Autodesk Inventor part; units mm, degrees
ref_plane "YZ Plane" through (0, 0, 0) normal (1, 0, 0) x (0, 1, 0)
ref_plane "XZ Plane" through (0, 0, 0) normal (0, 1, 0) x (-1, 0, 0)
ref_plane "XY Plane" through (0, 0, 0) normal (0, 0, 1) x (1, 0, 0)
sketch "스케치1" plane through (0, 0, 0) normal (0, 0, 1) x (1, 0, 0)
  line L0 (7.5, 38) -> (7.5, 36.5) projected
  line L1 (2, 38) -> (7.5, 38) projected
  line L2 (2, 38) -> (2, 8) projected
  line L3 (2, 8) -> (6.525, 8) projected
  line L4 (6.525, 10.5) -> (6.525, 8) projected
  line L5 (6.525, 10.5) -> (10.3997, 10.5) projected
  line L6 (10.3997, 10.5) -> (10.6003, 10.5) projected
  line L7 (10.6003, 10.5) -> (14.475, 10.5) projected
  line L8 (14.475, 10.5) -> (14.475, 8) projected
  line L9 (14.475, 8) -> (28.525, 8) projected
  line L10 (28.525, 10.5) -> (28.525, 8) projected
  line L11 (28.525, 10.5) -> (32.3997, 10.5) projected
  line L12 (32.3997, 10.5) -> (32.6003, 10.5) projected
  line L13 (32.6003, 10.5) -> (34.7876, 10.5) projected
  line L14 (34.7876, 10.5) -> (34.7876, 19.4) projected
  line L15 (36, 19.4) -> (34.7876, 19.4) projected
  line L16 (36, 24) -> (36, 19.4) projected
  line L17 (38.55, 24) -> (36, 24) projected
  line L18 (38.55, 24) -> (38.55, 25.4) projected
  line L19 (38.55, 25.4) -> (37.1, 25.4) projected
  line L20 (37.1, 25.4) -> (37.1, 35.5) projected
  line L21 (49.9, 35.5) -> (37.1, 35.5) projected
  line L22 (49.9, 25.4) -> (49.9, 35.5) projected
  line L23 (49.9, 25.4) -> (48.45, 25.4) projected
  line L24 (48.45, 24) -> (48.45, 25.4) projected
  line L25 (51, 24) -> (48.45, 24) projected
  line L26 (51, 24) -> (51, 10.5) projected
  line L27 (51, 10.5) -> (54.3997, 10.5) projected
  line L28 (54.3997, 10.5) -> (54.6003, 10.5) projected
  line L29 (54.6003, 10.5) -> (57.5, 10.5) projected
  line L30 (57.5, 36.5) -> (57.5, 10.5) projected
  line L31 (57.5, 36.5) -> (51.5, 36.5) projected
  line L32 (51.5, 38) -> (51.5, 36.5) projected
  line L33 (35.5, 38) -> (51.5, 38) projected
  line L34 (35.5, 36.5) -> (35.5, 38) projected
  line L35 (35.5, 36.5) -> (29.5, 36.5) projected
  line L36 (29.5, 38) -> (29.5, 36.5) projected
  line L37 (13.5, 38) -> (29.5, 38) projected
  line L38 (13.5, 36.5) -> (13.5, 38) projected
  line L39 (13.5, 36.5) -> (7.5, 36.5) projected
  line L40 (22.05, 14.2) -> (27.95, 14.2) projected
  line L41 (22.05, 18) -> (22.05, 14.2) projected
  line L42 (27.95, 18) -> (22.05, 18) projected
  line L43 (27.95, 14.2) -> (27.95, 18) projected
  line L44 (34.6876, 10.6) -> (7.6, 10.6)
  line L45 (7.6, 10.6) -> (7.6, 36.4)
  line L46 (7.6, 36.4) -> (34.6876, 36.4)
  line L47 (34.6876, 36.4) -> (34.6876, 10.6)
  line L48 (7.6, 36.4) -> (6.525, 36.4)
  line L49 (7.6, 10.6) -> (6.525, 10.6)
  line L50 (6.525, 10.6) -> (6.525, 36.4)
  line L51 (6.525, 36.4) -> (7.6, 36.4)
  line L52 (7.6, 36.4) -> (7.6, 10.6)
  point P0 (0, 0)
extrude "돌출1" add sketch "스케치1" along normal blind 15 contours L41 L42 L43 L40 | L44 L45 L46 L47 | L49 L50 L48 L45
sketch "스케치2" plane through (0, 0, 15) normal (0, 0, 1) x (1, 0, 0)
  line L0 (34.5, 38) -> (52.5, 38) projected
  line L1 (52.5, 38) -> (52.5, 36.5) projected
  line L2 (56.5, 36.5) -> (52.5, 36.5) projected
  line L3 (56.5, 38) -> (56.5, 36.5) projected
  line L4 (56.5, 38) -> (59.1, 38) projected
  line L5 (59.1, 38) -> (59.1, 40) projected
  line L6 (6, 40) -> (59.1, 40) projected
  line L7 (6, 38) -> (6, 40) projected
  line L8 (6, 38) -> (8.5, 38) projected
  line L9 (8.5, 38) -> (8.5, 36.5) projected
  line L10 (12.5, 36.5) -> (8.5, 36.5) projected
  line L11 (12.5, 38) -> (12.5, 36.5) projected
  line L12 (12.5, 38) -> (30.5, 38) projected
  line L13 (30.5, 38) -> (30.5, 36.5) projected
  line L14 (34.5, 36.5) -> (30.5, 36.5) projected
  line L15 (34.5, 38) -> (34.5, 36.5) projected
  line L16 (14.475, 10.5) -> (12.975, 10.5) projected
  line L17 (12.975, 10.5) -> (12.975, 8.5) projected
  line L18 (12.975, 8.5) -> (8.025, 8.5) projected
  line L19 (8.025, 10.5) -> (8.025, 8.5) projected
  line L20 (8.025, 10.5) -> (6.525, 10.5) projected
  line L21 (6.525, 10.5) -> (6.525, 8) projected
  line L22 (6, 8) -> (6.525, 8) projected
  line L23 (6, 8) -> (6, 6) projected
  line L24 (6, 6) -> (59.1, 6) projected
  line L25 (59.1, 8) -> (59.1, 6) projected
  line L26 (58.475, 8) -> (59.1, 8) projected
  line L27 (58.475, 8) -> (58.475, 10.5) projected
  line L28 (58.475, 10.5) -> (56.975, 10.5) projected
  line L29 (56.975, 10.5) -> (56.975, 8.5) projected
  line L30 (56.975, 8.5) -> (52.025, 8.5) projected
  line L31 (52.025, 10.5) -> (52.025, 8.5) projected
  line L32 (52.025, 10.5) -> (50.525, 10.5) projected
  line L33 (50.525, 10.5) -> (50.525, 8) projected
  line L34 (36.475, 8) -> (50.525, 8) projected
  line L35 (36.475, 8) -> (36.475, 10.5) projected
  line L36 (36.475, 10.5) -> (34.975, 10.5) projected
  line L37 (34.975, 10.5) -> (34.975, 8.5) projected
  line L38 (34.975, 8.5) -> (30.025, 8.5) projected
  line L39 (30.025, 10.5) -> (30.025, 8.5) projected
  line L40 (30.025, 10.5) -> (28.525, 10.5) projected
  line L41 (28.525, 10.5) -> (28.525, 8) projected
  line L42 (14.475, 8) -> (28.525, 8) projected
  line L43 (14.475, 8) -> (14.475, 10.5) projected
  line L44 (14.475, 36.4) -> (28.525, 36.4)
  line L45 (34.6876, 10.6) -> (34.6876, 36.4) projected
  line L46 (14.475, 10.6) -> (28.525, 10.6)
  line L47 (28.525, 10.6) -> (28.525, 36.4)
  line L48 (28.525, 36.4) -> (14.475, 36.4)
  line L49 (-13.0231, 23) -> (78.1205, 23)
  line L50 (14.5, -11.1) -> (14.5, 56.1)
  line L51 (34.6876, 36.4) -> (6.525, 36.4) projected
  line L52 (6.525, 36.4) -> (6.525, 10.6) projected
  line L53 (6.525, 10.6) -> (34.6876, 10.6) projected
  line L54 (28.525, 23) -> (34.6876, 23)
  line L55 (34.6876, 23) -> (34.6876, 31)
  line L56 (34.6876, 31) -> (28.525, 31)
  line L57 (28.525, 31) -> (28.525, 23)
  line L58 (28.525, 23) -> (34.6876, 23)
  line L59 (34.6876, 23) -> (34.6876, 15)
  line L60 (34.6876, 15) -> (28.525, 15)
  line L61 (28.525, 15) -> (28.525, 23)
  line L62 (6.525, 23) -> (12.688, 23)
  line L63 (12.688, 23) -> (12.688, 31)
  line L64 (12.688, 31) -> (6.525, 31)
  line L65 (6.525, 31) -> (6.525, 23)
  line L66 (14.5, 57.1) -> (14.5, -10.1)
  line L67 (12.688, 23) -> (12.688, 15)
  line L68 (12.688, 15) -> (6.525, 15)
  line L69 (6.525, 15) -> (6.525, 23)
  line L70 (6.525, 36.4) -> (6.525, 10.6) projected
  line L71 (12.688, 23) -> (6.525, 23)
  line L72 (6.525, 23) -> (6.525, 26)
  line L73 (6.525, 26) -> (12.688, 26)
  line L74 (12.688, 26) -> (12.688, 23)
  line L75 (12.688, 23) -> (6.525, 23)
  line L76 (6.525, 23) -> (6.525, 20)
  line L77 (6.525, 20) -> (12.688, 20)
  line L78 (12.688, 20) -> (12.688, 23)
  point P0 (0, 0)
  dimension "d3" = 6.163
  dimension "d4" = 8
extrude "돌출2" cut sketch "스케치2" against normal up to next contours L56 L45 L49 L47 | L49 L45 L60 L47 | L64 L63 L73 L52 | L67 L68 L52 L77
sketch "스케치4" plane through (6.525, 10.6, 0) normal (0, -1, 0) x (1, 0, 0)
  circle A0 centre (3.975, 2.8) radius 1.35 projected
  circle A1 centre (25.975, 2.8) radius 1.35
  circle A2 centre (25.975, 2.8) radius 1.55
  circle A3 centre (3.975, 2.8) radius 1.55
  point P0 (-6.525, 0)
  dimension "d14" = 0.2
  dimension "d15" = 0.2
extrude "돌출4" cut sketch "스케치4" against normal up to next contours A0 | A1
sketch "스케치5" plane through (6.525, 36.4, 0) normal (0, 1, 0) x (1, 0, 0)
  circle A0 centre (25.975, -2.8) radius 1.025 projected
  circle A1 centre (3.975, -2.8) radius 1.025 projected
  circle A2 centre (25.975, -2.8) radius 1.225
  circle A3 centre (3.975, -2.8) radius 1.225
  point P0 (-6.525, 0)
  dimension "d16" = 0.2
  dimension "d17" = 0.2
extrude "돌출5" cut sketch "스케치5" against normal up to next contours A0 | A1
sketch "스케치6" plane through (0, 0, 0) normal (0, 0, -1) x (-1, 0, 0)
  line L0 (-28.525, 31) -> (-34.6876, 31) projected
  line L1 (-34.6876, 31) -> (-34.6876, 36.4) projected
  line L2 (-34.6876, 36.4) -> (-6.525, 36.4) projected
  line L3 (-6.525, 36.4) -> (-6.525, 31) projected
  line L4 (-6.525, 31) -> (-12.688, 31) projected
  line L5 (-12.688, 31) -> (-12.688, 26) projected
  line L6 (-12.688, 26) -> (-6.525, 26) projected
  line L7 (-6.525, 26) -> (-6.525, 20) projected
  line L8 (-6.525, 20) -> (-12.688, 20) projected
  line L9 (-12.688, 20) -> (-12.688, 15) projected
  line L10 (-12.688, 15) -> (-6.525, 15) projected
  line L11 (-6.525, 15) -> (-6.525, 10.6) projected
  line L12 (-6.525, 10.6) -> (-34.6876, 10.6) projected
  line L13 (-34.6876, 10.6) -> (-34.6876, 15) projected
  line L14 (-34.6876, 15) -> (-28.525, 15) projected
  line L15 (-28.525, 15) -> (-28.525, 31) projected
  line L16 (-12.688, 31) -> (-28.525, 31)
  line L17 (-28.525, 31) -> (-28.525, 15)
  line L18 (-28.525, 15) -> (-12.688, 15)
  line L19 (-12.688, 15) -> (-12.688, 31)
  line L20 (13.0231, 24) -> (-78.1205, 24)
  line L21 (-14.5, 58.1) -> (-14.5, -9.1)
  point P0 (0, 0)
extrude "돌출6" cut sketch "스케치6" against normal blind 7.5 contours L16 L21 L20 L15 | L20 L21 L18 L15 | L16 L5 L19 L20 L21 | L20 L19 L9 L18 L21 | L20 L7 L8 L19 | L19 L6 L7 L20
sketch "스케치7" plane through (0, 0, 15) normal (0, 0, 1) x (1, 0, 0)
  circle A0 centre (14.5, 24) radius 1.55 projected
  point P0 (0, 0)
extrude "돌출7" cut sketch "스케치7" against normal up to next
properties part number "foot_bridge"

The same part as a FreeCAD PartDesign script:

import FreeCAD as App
import Part
import Sketcher
Q = App.Units.Quantity


def add_polygon(sketch, points):
    """Adds a closed chain of lines whose ends are joined by coincident constraints."""
    first, n = sketch.GeometryCount, len(points)
    for a, b in zip(points, points[1:] + points[:1]):
        sketch.addGeometry(Part.LineSegment(App.Vector(*a, 0), App.Vector(*b, 0)), False)
    for i in range(n):
        sketch.addConstraint(Sketcher.Constraint("Coincident", first + i, 2, first + (i + 1) % n, 1))

doc = App.newDocument("Part")
body = doc.addObject("PartDesign::Body", "Body")

sketch1 = body.newObject("Sketcher::SketchObject", "Sketch")
sketch1.AttachmentSupport = (doc.getObject("XY_Plane"), [""])
sketch1.MapMode = "FlatFace"
add_polygon(sketch1, [(35, 11), (35, 36), (7, 36), (7, 11)])
sketch1.addConstraint([
    Sketcher.Constraint("Vertical", 0),
    Sketcher.Constraint("Horizontal", 1),
    Sketcher.Constraint("Vertical", 2),
    Sketcher.Constraint("Horizontal", 3),
    Sketcher.Constraint("DistanceY", 0, 1, 0, 2, Q("25.8 mm")),
    Sketcher.Constraint("DistanceY", -1, 1, 0, 2, Q("36.4 mm")),
    Sketcher.Constraint("DistanceX", 1, 2, 1, 1, Q("28.1626 mm")),
    Sketcher.Constraint("DistanceX", -1, 1, 1, 2, Q("6.525 mm")),
])
pad1 = body.newObject("PartDesign::Pad", "Pad")
pad1.Profile = sketch1
pad1.Length = 15

sketch2 = body.newObject("Sketcher::SketchObject", "Sketch001")
sketch2.AttachmentSupport = (doc.getObject("XY_Plane"), [""])
sketch2.MapMode = "FlatFace"
sketch2.AttachmentOffset = App.Placement(App.Vector(0, 0, 15), App.Rotation())
add_polygon(sketch2, [(35, 31), (29, 31), (29, 15), (35, 15)])
add_polygon(sketch2, [(13, 31), (7, 31), (7, 26), (13, 26)])
add_polygon(sketch2, [(13, 15), (13, 20), (7, 20), (7, 15)])
sketch2.addConstraint([
    Sketcher.Constraint("Horizontal", 0),
    Sketcher.Constraint("Vertical", 1),
    Sketcher.Constraint("Horizontal", 2),
    Sketcher.Constraint("Vertical", 3),
    Sketcher.Constraint("Horizontal", 4),
    Sketcher.Constraint("Vertical", 5),
    Sketcher.Constraint("Horizontal", 6),
    Sketcher.Constraint("Vertical", 7),
    Sketcher.Constraint("Vertical", 8),
    Sketcher.Constraint("Horizontal", 9),
    Sketcher.Constraint("Vertical", 10),
    Sketcher.Constraint("Horizontal", 11),
    Sketcher.Constraint("Horizontal", 3, 2, 4, 2),
    Sketcher.Constraint("Horizontal", 2, 2, 10, 2),
    Sketcher.Constraint("Vertical", 7, 2, 8, 2),
    Sketcher.Constraint("Vertical", 5, 2, 9, 2),
    Sketcher.Constraint("Equal", 7, 8),
    Sketcher.Constraint("DistanceX", 4, 2, 4, 1, Q("6.163 mm")),
    Sketcher.Constraint("DistanceY", 1, 2, 1, 1, Q("16 mm")),
    Sketcher.Constraint("DistanceY", 5, 2, 5, 1, Q("5 mm")),
    Sketcher.Constraint("DistanceX", 0, 2, 0, 1, Q("6.1626 mm")),
    Sketcher.Constraint("DistanceY", -1, 1, 0, 2, Q("31 mm")),
    Sketcher.Constraint("DistanceX", 4, 2, 0, 2, Q("22 mm")),
    Sketcher.Constraint("DistanceX", -1, 1, 0, 2, Q("28.525 mm")),
])
pocket1 = body.newObject("PartDesign::Pocket", "Pocket")
pocket1.Profile = sketch2
pocket1.Type = "UpToFirst"

sketch3 = body.newObject("Sketcher::SketchObject", "Sketch002")
sketch3.AttachmentSupport = (doc.getObject("XZ_Plane"), [""])
sketch3.MapMode = "FlatFace"
sketch3.AttachmentOffset = App.Placement(App.Vector(0, 0, -10.6), App.Rotation())
sketch3.addGeometry([
    Part.Circle(App.Vector(10.5, 2.8, 0), App.Vector(0, 0, 1), 1.4),
    Part.Circle(App.Vector(32.5, 2.8, 0), App.Vector(0, 0, 1), 1.4),
], False)
sketch3.addConstraint([
    Sketcher.Constraint("Equal", 0, 1),
    Sketcher.Constraint("Horizontal", 0, 3, 1, 3),
    Sketcher.Constraint("Diameter", 0, Q("2.7 mm")),
    Sketcher.Constraint("DistanceX", 0, 3, 1, 3, Q("22 mm")),
    Sketcher.Constraint("DistanceX", -1, 1, 0, 3, Q("10.5 mm")),
    Sketcher.Constraint("DistanceY", -1, 1, 0, 3, Q("2.8 mm")),
])
pocket2 = body.newObject("PartDesign::Pocket", "Pocket001")
pocket2.Profile = sketch3
pocket2.Length = 4.4

sketch4 = body.newObject("Sketcher::SketchObject", "Sketch003")
sketch4.AttachmentSupport = (doc.getObject("XZ_Plane"), [""])
sketch4.MapMode = "FlatFace"
sketch4.AttachmentOffset = App.Placement(App.Vector(0, 0, -36.4), App.Rotation())
sketch4.addGeometry([
    Part.Circle(App.Vector(32.5, 2.8, 0), App.Vector(0, 0, 1), 1),
    Part.Circle(App.Vector(10.5, 2.8, 0), App.Vector(0, 0, 1), 1),
], False)
sketch4.addConstraint([
    Sketcher.Constraint("Equal", 0, 1),
    Sketcher.Constraint("Horizontal", 0, 3, 1, 3),
    Sketcher.Constraint("Diameter", 0, Q("2.05 mm")),
    Sketcher.Constraint("DistanceX", 1, 3, 0, 3, Q("22 mm")),
    Sketcher.Constraint("DistanceX", -1, 1, 0, 3, Q("32.5 mm")),
    Sketcher.Constraint("DistanceY", -1, 1, 0, 3, Q("2.8 mm")),
])
pocket3 = body.newObject("PartDesign::Pocket", "Pocket002")
pocket3.Profile = sketch4
pocket3.Length = 5.4
pocket3.Reversed = True

sketch5 = body.newObject("Sketcher::SketchObject", "Sketch004")
sketch5.AttachmentSupport = (doc.getObject("XY_Plane"), [""])
sketch5.MapMode = "FlatFace"
add_polygon(sketch5, [(29, 31), (29, 15), (13, 15), (13, 20), (7, 20), (7, 26), (13, 26), (13, 31)])
sketch5.addConstraint([
    Sketcher.Constraint("Vertical", 0),
    Sketcher.Constraint("Horizontal", 1),
    Sketcher.Constraint("Vertical", 2),
    Sketcher.Constraint("Horizontal", 3),
    Sketcher.Constraint("Vertical", 4),
    Sketcher.Constraint("Horizontal", 5),
    Sketcher.Constraint("Vertical", 6),
    Sketcher.Constraint("Horizontal", 7),
    Sketcher.Constraint("Vertical", 2, 2, 5, 2),
    Sketcher.Constraint("Equal", 2, 6),
    Sketcher.Constraint("DistanceY", 0, 2, 0, 1, Q("16 mm")),
    Sketcher.Constraint("DistanceY", 2, 1, 2, 2, Q("5 mm")),
    Sketcher.Constraint("DistanceY", -1, 1, 0, 2, Q("15 mm")),
    Sketcher.Constraint("DistanceX", 3, 2, 0, 2, Q("22 mm")),
    Sketcher.Constraint("DistanceX", 1, 2, 1, 1, Q("15.837 mm")),
    Sketcher.Constraint("DistanceX", -1, 1, 0, 2, Q("28.525 mm")),
])
pocket4 = body.newObject("PartDesign::Pocket", "Pocket003")
pocket4.Profile = sketch5
pocket4.Length = 7.5
pocket4.Reversed = True

sketch6 = body.newObject("Sketcher::SketchObject", "Sketch005")
sketch6.AttachmentSupport = (doc.getObject("XY_Plane"), [""])
sketch6.MapMode = "FlatFace"
sketch6.AttachmentOffset = App.Placement(App.Vector(0, 0, 15), App.Rotation())
sketch6.addGeometry(Part.Circle(App.Vector(14.5, 24, 0), App.Vector(0, 0, 1), 1.6), False)
sketch6.addConstraint([
    Sketcher.Constraint("Diameter", 0, Q("3.1 mm")),
    Sketcher.Constraint("DistanceY", -1, 1, 0, 3, Q("24 mm")),
    Sketcher.Constraint("DistanceX", -1, 1, 0, 3, Q("14.5 mm")),
])
pocket5 = body.newObject("PartDesign::Pocket", "Pocket004")
pocket5.Profile = sketch6
pocket5.Type = "UpToFirst"

doc.recompute()
